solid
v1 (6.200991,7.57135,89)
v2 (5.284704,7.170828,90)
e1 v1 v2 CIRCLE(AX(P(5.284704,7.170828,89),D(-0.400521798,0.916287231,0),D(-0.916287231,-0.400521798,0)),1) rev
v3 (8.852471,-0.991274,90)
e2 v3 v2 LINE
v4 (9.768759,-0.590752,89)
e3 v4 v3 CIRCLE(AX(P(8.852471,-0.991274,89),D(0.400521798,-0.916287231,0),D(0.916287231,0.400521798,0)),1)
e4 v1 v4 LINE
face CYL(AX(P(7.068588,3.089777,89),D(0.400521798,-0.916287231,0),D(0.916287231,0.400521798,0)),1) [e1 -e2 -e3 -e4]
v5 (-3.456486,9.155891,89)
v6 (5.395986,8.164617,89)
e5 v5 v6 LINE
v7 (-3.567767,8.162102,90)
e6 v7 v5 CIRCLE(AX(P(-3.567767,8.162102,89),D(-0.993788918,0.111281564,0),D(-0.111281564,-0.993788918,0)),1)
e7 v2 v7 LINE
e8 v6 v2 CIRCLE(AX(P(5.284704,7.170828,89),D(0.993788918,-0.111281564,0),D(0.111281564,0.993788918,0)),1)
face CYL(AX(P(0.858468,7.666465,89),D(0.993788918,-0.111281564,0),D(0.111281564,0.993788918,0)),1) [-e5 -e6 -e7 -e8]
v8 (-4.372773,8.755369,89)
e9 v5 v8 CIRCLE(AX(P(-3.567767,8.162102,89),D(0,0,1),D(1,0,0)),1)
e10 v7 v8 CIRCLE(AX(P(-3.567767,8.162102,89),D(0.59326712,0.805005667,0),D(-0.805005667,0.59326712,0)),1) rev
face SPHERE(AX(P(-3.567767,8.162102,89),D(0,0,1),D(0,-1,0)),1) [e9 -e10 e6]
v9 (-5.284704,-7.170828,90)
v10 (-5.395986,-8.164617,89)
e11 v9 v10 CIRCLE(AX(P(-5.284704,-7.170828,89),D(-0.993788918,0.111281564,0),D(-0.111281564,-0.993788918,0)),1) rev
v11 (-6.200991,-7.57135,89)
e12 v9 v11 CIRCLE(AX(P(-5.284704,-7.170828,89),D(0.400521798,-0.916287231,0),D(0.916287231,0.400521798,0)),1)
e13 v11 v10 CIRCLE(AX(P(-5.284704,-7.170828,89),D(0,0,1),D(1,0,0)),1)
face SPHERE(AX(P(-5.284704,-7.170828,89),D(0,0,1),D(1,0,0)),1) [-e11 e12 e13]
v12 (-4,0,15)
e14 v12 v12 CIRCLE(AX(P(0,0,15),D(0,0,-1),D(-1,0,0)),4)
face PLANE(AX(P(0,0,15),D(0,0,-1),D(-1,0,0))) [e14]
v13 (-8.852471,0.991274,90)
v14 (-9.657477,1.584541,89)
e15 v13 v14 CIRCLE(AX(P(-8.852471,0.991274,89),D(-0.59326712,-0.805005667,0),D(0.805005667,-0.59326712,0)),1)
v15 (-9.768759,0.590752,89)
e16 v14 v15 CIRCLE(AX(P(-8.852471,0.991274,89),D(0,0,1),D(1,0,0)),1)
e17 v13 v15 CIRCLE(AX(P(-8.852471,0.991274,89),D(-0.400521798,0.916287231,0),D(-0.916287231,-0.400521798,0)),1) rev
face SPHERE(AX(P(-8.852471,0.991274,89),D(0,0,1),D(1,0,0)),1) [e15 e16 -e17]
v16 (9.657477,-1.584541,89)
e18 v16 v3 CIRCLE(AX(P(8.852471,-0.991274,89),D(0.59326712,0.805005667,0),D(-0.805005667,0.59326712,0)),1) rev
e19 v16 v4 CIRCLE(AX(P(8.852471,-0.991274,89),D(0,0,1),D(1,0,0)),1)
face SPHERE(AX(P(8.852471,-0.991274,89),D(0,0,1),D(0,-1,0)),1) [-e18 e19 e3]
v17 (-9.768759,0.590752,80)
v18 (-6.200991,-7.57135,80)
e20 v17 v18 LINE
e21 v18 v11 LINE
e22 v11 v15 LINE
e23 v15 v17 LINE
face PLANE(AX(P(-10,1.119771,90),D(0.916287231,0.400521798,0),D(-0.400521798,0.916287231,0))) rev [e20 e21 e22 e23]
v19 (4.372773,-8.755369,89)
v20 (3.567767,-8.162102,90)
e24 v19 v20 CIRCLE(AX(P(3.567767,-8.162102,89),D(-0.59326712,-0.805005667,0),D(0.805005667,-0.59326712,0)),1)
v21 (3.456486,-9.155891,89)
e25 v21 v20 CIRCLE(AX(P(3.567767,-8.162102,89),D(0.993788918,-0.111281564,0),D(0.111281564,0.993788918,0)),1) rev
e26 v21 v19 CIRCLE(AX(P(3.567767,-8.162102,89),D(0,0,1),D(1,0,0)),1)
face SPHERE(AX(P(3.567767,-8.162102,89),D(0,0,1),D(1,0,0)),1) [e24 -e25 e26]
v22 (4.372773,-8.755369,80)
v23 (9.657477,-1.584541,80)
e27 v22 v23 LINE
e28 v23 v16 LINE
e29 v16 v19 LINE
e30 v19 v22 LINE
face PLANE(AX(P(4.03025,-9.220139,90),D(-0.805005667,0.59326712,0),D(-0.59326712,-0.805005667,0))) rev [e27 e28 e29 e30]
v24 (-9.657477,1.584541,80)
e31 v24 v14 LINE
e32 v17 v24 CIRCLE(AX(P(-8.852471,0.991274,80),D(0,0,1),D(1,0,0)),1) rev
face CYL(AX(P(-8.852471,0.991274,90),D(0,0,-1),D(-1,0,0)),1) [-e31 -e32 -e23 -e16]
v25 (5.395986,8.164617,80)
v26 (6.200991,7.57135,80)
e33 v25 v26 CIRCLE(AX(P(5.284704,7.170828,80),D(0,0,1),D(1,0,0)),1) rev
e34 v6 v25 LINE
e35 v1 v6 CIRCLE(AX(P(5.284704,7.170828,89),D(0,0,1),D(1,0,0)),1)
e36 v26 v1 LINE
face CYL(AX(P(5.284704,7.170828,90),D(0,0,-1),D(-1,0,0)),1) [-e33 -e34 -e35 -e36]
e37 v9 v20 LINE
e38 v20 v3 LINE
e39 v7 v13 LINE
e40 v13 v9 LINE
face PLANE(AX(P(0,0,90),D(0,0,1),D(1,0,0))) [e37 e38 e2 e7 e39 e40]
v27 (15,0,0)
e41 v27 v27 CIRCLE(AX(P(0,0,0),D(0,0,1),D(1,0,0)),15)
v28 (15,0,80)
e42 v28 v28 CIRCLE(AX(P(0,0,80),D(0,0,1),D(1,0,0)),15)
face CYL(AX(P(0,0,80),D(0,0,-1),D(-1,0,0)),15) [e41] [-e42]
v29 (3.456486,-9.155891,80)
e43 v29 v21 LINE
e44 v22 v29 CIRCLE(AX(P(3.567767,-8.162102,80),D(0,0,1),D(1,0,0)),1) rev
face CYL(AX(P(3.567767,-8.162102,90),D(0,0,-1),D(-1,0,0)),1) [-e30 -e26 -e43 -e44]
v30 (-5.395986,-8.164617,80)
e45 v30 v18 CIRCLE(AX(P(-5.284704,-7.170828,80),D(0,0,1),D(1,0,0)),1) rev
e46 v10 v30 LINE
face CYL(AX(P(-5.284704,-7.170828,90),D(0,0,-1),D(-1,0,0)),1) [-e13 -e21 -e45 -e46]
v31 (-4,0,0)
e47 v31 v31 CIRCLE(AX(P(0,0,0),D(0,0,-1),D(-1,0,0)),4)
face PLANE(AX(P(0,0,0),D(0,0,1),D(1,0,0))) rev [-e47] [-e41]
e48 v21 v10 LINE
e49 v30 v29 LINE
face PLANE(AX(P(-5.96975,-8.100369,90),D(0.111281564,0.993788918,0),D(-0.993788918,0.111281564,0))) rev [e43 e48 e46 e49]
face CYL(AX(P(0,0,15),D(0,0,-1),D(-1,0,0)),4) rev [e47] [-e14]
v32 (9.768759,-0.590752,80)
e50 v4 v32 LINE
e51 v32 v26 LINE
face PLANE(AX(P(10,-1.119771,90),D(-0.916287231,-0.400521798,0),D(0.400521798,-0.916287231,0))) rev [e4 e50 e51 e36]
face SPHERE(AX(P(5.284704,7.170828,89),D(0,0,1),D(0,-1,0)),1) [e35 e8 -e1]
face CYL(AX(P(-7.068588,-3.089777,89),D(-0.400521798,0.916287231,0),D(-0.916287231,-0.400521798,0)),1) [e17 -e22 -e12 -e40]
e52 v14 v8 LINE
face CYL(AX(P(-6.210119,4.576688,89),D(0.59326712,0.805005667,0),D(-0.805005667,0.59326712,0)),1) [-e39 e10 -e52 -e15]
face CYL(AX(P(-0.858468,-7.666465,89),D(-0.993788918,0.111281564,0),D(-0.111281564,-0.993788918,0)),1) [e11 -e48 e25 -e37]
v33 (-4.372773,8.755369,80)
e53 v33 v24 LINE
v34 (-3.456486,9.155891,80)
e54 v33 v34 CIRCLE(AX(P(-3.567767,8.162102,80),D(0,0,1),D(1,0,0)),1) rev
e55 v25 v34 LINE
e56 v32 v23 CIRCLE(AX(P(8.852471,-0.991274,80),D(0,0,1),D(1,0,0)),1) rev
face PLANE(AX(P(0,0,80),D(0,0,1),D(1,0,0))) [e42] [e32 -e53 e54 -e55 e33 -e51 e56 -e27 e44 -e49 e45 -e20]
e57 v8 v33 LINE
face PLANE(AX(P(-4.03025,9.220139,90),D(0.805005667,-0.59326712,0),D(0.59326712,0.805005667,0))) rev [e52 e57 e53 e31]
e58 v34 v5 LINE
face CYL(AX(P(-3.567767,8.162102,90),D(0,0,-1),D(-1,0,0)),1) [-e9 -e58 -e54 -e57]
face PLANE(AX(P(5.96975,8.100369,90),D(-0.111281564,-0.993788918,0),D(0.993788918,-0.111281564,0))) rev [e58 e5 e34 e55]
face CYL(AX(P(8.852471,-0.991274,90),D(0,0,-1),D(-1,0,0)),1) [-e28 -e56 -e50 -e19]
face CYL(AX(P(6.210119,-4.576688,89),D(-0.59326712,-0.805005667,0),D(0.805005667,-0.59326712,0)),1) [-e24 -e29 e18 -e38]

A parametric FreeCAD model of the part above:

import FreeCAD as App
import Part
import Sketcher

V = App.Vector


def edges_at(feature, points):
    """Names of the edges that pass closest to the given points."""
    edges = feature.Shape.Edges
    near = lambda p: min(range(len(edges)), key=lambda i: edges[i].distToShape(Part.Vertex(*p))[0])
    return sorted({f"Edge{near(p) + 1}" for p in points})


def add_polygon(sketch, points):
    """Adds a closed chain of lines whose ends are joined by coincident constraints."""
    first, n = sketch.GeometryCount, len(points)
    for a, b in zip(points, points[1:] + points[:1]):
        sketch.addGeometry(Part.LineSegment(App.Vector(*a, 0), App.Vector(*b, 0)), False)
    for i in range(n):
        sketch.addConstraint(Sketcher.Constraint("Coincident", first + i, 2, first + (i + 1) % n, 1))

doc = App.newDocument("Part")
body = doc.addObject("PartDesign::Body", "Body")

# Sketch on XY plane
sketch1 = body.newObject("Sketcher::SketchObject", "Sketch")
sketch1.AttachmentSupport = (doc.getObject("XY_Plane"), [""])
sketch1.MapMode = "FlatFace"
sketch1.addGeometry(Part.Circle(V(0, 0, 0), V(0, 0, 1), 15), False)
sketch1.addConstraint([
    Sketcher.Constraint("Coincident", 0, 3, -1, 1),
    Sketcher.Constraint("Diameter", 0, 30.0),
])
pad1 = body.newObject("PartDesign::Pad", "Pad")
pad1.Profile = sketch1
pad1.Length = 80

# Sketch on XY plane
sketch2 = body.newObject("Sketcher::SketchObject", "Sketch001")
sketch2.AttachmentSupport = (doc.getObject("XY_Plane"), [""])
sketch2.MapMode = "FlatFace"
sketch2.addGeometry(Part.Circle(V(0, 0, 0), V(0, 0, 1), 4), False)
sketch2.addConstraint([
    Sketcher.Constraint("Coincident", 0, 3, -1, 1),
    Sketcher.Constraint("Diameter", 0, 8.0),
])
pocket1 = body.newObject("PartDesign::Pocket", "Pocket")
pocket1.Profile = sketch2
pocket1.Length = 15
pocket1.Reversed = True

# Sketch on XY plane
sketch3 = body.newObject("Sketcher::SketchObject", "Sketch002")
sketch3.AttachmentSupport = (doc.getObject("XY_Plane"), [""])
sketch3.MapMode = "FlatFace"
sketch3.AttachmentOffset = App.Placement(V(0, 0, 80), App.Rotation())
add_polygon(sketch3, [(6, 8), (-4, 9), (-10, 1), (-6, -8), (4, -9), (10, -1)])  # lines 0-5
sketch3.addConstraint([
    Sketcher.Constraint("Symmetric", 0, 2, 3, 2, -1, 1),
    Sketcher.Constraint("Symmetric", 1, 2, 4, 2, -1, 1),
    Sketcher.Constraint("Symmetric", 2, 2, 5, 2, -1, 1),
    Sketcher.Constraint("Equal", 0, 1),
    Sketcher.Constraint("Equal", 1, 2),
    Sketcher.Constraint("DistanceX", 1, 2, -1, 1, 10.0),
    Sketcher.Constraint("DistanceX", 2, 2, 3, 2, 10.0),
    Sketcher.Constraint("Distance", 0, 10.062499),
    Sketcher.Constraint("DistanceX", 2, 2, 0, 2, 1.9395),
])
pad2 = body.newObject("PartDesign::Pad", "Pad001")
pad2.Profile = sketch3
pad2.Length = 10
doc.recompute()

fillet = body.newObject("PartDesign::Fillet", "Fillet")
fillet.Base = (pad2, edges_at(pad2, [
    (10, -1.12, 85),
    (5.97, 8.1, 85),
    (-4.03, 9.22, 85),
    (-10, 1.12, 85),
    (-5.97, -8.1, 85),
    (4.03, -9.22, 85),
    (7.985, 3.49, 90),
    (0.97, 8.66, 90),
    (-7.015, 5.17, 90),
    (-7.985, -3.49, 90),
    (-0.97, -8.66, 90),
    (7.015, -5.17, 90),
]))
fillet.Radius = 1

doc.recompute()
